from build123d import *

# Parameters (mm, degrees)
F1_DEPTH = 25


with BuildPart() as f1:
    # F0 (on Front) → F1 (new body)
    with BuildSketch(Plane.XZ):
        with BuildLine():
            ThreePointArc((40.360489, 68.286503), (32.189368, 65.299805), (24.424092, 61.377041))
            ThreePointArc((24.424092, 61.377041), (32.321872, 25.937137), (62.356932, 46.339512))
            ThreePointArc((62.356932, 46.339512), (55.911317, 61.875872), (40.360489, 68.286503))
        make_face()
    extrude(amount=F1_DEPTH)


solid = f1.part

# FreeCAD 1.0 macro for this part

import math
import FreeCAD as App
import Part
import Sketcher

V = App.Vector
Q = App.Units.Quantity

doc = App.newDocument("Part")
body = doc.addObject("PartDesign::Body", "Body")

# Sketch on XZ plane
sketch1 = doc.addObject("Sketcher::SketchObject", "Sketch")
body.addObject(sketch1)
sketch1.AttachmentSupport = (doc.XZ_Plane, [""])
sketch1.MapMode = "FlatFace"
sketch1.addGeometry(Part.ArcOfCircle(Part.Circle(V(62, -3, 0), V(0, 0, 1), 74), math.radians(106.72), math.radians(120.16)), False)
sketch1.addGeometry(Part.ArcOfCircle(Part.Circle(V(40, 46, 0), V(0, 0, 1), 22), math.radians(137), math.radians(360)), False)
sketch1.addGeometry(Part.ArcOfCircle(Part.Circle(V(40, 46, 0), V(0, 0, 1), 22), math.radians(0), math.radians(90)), False)
sketch1.addConstraint(Sketcher.Constraint("Coincident", 0, 2, 1, 1))
sketch1.addConstraint(Sketcher.Constraint("Tangent", 1, 2, 2, 1))
sketch1.addConstraint(Sketcher.Constraint("Coincident", 2, 2, 0, 1))
sketch1.addConstraint(Sketcher.Constraint("Equal", 1, 2))
sketch1.addConstraint(Sketcher.Constraint("Horizontal", 2, 3, 1, 2))
sketch1.addConstraint(Sketcher.Constraint("Radius", 0, Q("74.184633 mm")))
sketch1.addConstraint(Sketcher.Constraint("Radius", 1, Q("21.947047 mm")))
sketch1.addConstraint(Sketcher.Constraint("DistanceY", 0, 3, -1, 1, Q("2.762971 mm")))
sketch1.addConstraint(Sketcher.Constraint("DistanceY", -1, 1, 1, 3, Q("46.339512 mm")))
sketch1.addConstraint(Sketcher.Constraint("DistanceY", -1, 1, 0, 2, Q("61.377041 mm")))
sketch1.addConstraint(Sketcher.Constraint("DistanceX", -1, 1, 2, 2, Q("40.360489 mm")))
pad1 = doc.addObject("PartDesign::Pad", "Pad")
body.addObject(pad1)
pad1.Profile = sketch1
pad1.Length = 25

doc.recompute()
